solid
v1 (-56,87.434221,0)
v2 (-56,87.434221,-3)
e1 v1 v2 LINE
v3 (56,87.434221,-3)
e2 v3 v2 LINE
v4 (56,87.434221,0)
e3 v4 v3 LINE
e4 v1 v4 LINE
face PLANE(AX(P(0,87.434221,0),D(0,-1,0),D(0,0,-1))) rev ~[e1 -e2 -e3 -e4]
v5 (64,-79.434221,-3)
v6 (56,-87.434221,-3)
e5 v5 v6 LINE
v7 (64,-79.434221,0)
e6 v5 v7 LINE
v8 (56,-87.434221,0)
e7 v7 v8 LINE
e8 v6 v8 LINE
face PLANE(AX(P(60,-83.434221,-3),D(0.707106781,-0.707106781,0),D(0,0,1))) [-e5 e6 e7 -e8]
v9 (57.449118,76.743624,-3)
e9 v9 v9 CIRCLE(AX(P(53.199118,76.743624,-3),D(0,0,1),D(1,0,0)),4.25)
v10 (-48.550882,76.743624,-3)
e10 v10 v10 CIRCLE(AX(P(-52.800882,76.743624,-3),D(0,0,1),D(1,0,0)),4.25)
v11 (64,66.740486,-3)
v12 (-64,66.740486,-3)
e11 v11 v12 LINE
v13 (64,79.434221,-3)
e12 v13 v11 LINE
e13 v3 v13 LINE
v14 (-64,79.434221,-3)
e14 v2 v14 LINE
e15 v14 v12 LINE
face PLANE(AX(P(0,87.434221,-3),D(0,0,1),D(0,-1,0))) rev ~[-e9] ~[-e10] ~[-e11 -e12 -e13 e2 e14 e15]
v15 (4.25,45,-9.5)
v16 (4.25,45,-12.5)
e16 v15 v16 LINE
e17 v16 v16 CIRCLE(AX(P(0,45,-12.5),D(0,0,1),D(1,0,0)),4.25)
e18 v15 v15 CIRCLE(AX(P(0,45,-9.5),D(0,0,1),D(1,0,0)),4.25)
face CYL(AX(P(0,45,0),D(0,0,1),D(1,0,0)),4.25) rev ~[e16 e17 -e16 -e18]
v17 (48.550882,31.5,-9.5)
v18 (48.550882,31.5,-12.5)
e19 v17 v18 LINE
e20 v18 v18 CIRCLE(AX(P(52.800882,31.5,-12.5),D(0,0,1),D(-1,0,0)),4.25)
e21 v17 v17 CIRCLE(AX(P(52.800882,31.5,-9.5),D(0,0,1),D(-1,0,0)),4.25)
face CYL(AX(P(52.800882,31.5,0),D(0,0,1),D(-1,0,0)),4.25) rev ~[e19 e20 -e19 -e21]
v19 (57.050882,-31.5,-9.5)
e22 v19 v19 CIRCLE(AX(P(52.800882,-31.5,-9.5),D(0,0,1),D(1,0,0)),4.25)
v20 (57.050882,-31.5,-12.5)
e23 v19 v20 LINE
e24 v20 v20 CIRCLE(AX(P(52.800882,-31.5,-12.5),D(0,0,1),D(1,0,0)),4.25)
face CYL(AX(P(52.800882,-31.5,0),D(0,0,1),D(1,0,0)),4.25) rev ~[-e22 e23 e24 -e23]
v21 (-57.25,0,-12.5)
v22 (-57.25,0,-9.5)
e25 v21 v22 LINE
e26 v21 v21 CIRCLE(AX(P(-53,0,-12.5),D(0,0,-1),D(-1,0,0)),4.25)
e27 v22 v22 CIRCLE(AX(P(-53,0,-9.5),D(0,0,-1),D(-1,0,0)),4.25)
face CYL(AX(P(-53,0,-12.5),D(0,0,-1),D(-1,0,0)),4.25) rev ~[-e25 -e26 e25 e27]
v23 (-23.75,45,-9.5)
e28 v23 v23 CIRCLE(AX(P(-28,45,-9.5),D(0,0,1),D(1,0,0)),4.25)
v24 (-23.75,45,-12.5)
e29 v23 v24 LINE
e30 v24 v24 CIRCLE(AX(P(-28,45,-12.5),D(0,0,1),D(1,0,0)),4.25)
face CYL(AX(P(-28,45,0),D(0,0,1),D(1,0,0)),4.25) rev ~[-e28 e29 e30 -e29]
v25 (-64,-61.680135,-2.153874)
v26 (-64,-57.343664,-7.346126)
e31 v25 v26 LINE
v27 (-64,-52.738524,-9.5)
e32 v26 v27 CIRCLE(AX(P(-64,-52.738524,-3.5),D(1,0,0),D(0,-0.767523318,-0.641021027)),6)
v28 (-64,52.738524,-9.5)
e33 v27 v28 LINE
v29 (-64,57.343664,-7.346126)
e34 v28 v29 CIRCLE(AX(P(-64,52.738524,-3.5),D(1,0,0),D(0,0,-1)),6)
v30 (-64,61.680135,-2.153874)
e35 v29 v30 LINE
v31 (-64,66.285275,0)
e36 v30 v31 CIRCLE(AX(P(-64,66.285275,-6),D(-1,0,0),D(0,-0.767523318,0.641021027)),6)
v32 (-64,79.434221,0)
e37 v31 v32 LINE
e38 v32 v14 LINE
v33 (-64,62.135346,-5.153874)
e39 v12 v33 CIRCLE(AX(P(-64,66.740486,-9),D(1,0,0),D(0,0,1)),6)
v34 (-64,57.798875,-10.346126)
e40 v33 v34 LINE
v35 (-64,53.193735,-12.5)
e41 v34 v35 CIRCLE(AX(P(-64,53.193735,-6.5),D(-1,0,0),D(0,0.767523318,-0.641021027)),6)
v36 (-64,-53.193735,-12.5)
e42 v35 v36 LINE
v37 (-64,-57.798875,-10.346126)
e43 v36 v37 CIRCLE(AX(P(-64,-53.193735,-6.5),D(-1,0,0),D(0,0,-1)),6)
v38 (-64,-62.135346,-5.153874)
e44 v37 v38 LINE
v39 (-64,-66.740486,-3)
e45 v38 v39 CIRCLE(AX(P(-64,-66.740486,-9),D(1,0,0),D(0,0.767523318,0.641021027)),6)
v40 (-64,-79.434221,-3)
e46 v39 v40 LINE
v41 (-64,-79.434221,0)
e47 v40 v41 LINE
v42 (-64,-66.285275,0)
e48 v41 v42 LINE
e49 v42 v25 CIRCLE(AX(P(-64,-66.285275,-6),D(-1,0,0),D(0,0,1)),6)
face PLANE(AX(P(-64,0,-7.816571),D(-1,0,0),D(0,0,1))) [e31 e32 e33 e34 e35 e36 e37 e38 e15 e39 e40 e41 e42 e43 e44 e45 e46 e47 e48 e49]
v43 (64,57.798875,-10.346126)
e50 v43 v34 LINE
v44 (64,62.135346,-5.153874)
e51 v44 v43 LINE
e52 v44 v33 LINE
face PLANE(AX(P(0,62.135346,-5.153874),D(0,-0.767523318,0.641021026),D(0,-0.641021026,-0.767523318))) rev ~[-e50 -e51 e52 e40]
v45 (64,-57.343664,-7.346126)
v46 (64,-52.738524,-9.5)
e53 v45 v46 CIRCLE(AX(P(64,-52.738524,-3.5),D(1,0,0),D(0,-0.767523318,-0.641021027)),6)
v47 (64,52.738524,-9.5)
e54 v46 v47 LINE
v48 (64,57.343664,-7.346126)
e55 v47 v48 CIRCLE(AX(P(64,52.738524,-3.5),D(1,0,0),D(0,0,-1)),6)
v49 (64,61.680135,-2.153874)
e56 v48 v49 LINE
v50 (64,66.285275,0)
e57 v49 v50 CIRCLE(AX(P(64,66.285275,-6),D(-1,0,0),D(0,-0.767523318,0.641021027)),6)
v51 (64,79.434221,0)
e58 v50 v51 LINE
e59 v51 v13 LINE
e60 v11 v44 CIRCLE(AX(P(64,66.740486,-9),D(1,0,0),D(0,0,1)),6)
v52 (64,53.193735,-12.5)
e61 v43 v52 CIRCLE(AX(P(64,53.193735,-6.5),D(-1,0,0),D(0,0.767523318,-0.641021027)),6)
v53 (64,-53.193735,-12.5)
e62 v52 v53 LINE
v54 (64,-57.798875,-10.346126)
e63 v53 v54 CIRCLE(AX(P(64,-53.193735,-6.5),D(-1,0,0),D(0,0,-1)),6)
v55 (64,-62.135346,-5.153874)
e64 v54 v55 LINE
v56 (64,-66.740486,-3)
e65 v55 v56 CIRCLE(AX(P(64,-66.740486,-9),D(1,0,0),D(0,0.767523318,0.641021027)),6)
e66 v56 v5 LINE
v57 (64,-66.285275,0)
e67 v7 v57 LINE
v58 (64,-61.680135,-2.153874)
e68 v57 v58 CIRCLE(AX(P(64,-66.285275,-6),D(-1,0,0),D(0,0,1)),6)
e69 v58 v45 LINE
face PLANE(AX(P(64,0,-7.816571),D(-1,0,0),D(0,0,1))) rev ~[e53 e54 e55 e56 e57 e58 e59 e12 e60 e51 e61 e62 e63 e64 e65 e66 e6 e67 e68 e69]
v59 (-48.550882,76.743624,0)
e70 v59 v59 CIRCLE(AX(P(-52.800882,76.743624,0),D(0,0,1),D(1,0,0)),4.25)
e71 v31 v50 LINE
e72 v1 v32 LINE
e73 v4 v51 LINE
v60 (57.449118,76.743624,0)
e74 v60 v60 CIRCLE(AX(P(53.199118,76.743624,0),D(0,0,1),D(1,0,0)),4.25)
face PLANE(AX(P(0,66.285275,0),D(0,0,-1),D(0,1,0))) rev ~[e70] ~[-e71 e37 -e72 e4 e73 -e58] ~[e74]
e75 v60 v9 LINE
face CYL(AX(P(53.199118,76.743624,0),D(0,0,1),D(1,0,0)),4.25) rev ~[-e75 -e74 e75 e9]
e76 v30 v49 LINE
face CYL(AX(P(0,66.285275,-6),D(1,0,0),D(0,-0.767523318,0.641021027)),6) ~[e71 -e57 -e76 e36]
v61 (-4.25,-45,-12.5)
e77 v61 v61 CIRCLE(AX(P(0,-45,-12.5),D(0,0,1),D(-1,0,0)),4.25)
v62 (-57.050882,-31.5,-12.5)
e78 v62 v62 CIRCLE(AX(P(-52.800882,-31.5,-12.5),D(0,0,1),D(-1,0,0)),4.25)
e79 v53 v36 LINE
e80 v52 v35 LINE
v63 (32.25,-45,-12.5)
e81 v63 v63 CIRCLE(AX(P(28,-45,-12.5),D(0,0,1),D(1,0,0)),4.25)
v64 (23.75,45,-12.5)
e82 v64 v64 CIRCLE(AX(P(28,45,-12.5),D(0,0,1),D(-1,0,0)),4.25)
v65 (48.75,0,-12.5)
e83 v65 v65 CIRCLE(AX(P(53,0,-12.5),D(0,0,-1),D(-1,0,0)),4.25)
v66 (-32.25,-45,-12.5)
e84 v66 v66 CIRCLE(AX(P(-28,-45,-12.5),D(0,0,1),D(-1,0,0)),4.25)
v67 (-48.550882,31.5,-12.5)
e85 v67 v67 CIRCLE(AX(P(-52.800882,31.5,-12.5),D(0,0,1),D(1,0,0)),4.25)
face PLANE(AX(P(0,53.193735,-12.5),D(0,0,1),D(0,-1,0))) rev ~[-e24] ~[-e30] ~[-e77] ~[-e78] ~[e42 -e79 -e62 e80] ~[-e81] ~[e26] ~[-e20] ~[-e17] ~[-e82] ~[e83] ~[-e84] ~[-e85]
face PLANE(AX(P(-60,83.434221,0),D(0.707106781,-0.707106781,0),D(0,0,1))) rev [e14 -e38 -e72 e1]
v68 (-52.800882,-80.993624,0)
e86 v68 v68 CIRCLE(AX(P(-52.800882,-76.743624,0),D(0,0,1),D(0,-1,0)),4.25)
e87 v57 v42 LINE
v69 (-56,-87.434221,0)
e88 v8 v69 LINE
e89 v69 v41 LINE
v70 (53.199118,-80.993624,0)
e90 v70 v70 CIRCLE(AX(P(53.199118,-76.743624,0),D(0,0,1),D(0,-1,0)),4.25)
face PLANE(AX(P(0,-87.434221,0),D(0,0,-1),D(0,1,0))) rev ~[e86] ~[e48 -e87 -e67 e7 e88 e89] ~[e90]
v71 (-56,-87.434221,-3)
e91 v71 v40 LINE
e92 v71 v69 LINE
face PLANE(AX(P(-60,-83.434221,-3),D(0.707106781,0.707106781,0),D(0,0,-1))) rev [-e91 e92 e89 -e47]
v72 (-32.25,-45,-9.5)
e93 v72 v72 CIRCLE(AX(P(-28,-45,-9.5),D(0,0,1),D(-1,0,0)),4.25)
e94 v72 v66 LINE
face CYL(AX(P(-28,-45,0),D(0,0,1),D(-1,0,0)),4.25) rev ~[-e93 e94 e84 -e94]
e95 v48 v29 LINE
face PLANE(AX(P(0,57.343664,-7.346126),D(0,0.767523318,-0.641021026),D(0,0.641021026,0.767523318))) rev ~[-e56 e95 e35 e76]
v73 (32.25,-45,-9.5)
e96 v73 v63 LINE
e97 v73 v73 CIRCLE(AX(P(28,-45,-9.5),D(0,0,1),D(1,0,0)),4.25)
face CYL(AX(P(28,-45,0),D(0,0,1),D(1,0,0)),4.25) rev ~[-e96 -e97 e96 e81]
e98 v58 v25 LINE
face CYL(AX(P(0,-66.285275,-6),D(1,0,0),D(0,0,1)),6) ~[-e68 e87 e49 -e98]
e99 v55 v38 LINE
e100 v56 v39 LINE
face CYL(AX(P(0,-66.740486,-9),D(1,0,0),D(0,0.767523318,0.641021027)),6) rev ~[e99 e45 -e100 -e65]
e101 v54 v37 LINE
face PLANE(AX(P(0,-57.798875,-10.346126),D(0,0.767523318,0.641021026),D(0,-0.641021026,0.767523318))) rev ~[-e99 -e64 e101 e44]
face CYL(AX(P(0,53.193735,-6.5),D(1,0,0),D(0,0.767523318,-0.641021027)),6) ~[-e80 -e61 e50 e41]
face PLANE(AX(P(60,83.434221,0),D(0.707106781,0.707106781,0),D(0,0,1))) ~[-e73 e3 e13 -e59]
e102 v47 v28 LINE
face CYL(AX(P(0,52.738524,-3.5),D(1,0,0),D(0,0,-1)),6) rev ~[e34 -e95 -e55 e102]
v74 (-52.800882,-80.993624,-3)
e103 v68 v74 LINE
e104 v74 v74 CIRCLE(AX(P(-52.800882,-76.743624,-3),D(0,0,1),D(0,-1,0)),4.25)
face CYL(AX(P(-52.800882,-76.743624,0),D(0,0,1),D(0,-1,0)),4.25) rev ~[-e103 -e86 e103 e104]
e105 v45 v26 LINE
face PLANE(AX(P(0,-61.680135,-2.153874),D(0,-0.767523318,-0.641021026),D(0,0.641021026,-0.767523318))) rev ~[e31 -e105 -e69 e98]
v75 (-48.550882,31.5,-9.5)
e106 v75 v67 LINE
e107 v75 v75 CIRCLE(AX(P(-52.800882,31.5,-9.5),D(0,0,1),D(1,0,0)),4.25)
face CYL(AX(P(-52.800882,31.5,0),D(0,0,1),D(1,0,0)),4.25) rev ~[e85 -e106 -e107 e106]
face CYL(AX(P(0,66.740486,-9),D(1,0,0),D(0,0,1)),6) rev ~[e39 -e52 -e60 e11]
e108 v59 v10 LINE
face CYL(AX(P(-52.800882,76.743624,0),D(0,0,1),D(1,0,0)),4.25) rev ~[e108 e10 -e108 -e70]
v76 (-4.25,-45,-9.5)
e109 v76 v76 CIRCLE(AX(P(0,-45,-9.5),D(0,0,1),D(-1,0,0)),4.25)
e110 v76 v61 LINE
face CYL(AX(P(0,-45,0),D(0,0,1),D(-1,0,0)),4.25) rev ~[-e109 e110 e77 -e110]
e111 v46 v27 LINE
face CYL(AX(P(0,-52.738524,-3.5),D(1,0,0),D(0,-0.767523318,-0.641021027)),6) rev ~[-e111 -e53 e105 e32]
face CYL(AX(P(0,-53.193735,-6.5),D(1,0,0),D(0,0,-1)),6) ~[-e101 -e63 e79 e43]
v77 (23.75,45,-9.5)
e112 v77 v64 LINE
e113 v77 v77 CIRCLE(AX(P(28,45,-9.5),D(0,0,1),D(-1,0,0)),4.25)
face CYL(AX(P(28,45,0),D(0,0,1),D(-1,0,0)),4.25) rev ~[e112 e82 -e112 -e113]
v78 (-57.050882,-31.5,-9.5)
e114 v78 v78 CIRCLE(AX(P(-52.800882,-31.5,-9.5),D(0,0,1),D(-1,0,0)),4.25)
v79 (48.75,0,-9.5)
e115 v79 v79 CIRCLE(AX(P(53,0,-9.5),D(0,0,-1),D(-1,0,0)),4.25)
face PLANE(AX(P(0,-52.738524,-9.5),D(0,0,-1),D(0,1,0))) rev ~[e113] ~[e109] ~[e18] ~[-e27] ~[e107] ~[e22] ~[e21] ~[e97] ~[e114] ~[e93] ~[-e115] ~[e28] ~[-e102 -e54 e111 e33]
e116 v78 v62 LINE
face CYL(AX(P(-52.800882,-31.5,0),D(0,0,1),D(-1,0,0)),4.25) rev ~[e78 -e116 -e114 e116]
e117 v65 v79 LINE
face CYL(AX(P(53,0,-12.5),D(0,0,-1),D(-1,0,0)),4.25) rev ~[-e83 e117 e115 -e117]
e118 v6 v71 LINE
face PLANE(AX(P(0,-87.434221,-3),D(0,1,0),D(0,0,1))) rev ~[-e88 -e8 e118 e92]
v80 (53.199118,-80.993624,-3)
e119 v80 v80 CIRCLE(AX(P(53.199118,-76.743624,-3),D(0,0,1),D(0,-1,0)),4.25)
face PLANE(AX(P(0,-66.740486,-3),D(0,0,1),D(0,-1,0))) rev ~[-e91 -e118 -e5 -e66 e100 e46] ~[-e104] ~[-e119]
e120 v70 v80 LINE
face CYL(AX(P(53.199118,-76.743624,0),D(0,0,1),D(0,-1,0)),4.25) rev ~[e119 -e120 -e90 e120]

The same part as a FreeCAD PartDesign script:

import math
import FreeCAD as App
import Part
import Sketcher
from FreeCAD import Vector
Q = App.Units.Quantity


def edges_at(feature, points):
    """Names of the edges that pass closest to the given points."""
    edges = feature.Shape.Edges
    near = lambda p: min(range(len(edges)), key=lambda i: edges[i].distToShape(Part.Vertex(*p))[0])
    return sorted({f"Edge{near(p) + 1}" for p in points})

doc = App.newDocument("Part")
body = doc.addObject("PartDesign::Body", "Body")

# Sketch on YZ plane
sketch1 = body.newObject("Sketcher::SketchObject", "Sketch")
sketch1.AttachmentSupport = (doc.getObject("YZ_Plane"), [""])
sketch1.MapMode = "FlatFace"
sketch1.addGeometry([
    Part.LineSegment(Vector(87.434221, -3, 0), Vector(87.434221, 0, 0)),  # 0
    Part.LineSegment(Vector(87.434221, 0, 0), Vector(66.285275, 0, 0)),  # 1
    Part.ArcOfCircle(Part.Circle(Vector(66.285275, -6, 0), Vector(0, 0, 1), 6), math.radians(90), math.radians(140.132003)),  # 2
    Part.LineSegment(Vector(61.680135, -2.153874, 0), Vector(57.343664, -7.346126, 0)),  # 3
    Part.ArcOfCircle(Part.Circle(Vector(52.738524, -3.5, 0), Vector(0, 0, 1), 6), math.radians(-90), math.radians(-39.867997)),  # 4
    Part.LineSegment(Vector(52.738524, -9.5, 0), Vector(-52.738524, -9.5, 0)),  # 5
    Part.ArcOfCircle(Part.Circle(Vector(-52.738524, -3.5, 0), Vector(0, 0, 1), 6), math.radians(-140.132003), math.radians(-90)),  # 6
    Part.LineSegment(Vector(-57.343664, -7.346126, 0), Vector(-61.680135, -2.153874, 0)),  # 7
    Part.ArcOfCircle(Part.Circle(Vector(-66.285275, -6, 0), Vector(0, 0, 1), 6), math.radians(39.867997), math.radians(90)),  # 8
    Part.LineSegment(Vector(-66.285275, 0, 0), Vector(-87.434221, 0, 0)),  # 9
    Part.LineSegment(Vector(-87.434221, 0, 0), Vector(-87.434221, -3, 0)),  # 10
    Part.LineSegment(Vector(-87.434221, -3, 0), Vector(-66.740486, -3, 0)),  # 11
    Part.ArcOfCircle(Part.Circle(Vector(-66.740486, -9, 0), Vector(0, 0, 1), 6), math.radians(39.867997), math.radians(90)),  # 12
    Part.LineSegment(Vector(-62.135346, -5.153874, 0), Vector(-57.798875, -10.346126, 0)),  # 13
    Part.ArcOfCircle(Part.Circle(Vector(-53.193735, -6.5, 0), Vector(0, 0, 1), 6), math.radians(-140.132003), math.radians(-90)),  # 14
    Part.LineSegment(Vector(-53.193735, -12.5, 0), Vector(53.193735, -12.5, 0)),  # 15
    Part.ArcOfCircle(Part.Circle(Vector(53.193735, -6.5, 0), Vector(0, 0, 1), 6), math.radians(-90), math.radians(-39.867997)),  # 16
    Part.LineSegment(Vector(57.798875, -10.346126, 0), Vector(62.135346, -5.153874, 0)),  # 17
    Part.ArcOfCircle(Part.Circle(Vector(66.740486, -9, 0), Vector(0, 0, 1), 6), math.radians(90), math.radians(140.132003)),  # 18
    Part.LineSegment(Vector(66.740486, -3, 0), Vector(87.434221, -3, 0)),  # 19
], False)
sketch1.addConstraint([
    Sketcher.Constraint("Coincident", 0, 2, 1, 1),
    Sketcher.Constraint("Tangent", 1, 2, 2, 1),
    Sketcher.Constraint("Tangent", 2, 2, 3, 1),
    Sketcher.Constraint("Tangent", 3, 2, 4, 2),
    Sketcher.Constraint("Tangent", 4, 1, 5, 1),
    Sketcher.Constraint("Tangent", 5, 2, 6, 2),
    Sketcher.Constraint("Tangent", 6, 1, 7, 1),
    Sketcher.Constraint("Tangent", 7, 2, 8, 1),
    Sketcher.Constraint("Tangent", 8, 2, 9, 1),
    Sketcher.Constraint("Coincident", 9, 2, 10, 1),
    Sketcher.Constraint("Coincident", 10, 2, 11, 1),
    Sketcher.Constraint("Tangent", 11, 2, 12, 2),
    Sketcher.Constraint("Tangent", 12, 1, 13, 1),
    Sketcher.Constraint("Tangent", 13, 2, 14, 1),
    Sketcher.Constraint("Tangent", 14, 2, 15, 1),
    Sketcher.Constraint("Tangent", 15, 2, 16, 1),
    Sketcher.Constraint("Tangent", 16, 2, 17, 1),
    Sketcher.Constraint("Tangent", 17, 2, 18, 2),
    Sketcher.Constraint("Tangent", 18, 1, 19, 1),
    Sketcher.Constraint("Coincident", 19, 2, 0, 1),
    Sketcher.Constraint("Vertical", 0),
    Sketcher.Constraint("Horizontal", 1),
    Sketcher.Constraint("Horizontal", 5),
    Sketcher.Constraint("Horizontal", 9),
    Sketcher.Constraint("Vertical", 10),
    Sketcher.Constraint("Horizontal", 11),
    Sketcher.Constraint("Horizontal", 15),
    Sketcher.Constraint("Horizontal", 19),
    Sketcher.Constraint("Equal", 2, 4),
    Sketcher.Constraint("Equal", 4, 6),
    Sketcher.Constraint("Equal", 6, 8),
    Sketcher.Constraint("Equal", 8, 12),
    Sketcher.Constraint("Equal", 12, 14),
    Sketcher.Constraint("Equal", 14, 16),
    Sketcher.Constraint("Equal", 16, 18),
    Sketcher.Constraint("Symmetric", 1, 2, 8, 2, -1, 1),
    Sketcher.Constraint("Symmetric", 12, 3, 18, 3, -2),
    Sketcher.Constraint("Symmetric", 3, 2, 6, 1, -2),
    Sketcher.Constraint("Parallel", 7, 13),
    Sketcher.Constraint("Parallel", 3, 17),
    Sketcher.Constraint("Equal", 1, 9),
    Sketcher.Constraint("Equal", 7, 13),
    Sketcher.Constraint("Radius", 2, Q("6 mm")),
    Sketcher.Constraint("DistanceY", 0, 1, 0, 2, Q("3 mm")),
    Sketcher.Constraint("DistanceY", 4, 3, -1, 1, Q("3.5 mm")),
    Sketcher.Constraint("DistanceX", 15, 1, 15, 2, Q("106.38747 mm")),
    Sketcher.Constraint("DistanceX", 6, 3, 2, 3, Q("119.023799 mm")),
    Sketcher.Constraint("DistanceX", 16, 3, 2, 2, Q("8.4864 mm")),
    Sketcher.Constraint("DistanceX", 1, 2, 1, 1, Q("21.148946 mm")),
])
pad1 = body.newObject("PartDesign::Pad", "Pad")
pad1.Profile = sketch1
pad1.Length = 128
pad1.Midplane = True
doc.recompute()

chamfer = body.newObject("PartDesign::Chamfer", "Chamfer")
chamfer.Base = (pad1, edges_at(pad1, [
    (-64, 87.434, -1.5),
    (-64, -87.434, -1.5),
    (64, -87.434, -1.5),
    (64, 87.434, -1.5),
]))
chamfer.Size = 8

# Sketch on XY plane
sketch2 = body.newObject("Sketcher::SketchObject", "Sketch001")
sketch2.AttachmentSupport = (doc.getObject("XY_Plane"), [""])
sketch2.MapMode = "FlatFace"
sketch2.addGeometry([
    Part.Circle(Vector(-52.800882, 76.743624, 0), Vector(0, 0, 1), 4.25),  # 0
    Part.Circle(Vector(53.199118, 76.743624, 0), Vector(0, 0, 1), 4.25),  # 1
    Part.Circle(Vector(-52.800882, 31.5, 0), Vector(0, 0, 1), 4.25),  # 2
    Part.Circle(Vector(-28, 45, 0), Vector(0, 0, 1), 4.25),  # 3
    Part.Circle(Vector(0, 45, 0), Vector(0, 0, 1), 4.25),  # 4
    Part.Circle(Vector(52.800882, 31.5, 0), Vector(0, 0, 1), 4.25),  # 5
    Part.Circle(Vector(28, 45, 0), Vector(0, 0, 1), 4.25),  # 6
    Part.Circle(Vector(53.199118, -76.743624, 0), Vector(0, 0, 1), 4.25),  # 7
    Part.Circle(Vector(52.800882, -31.5, 0), Vector(0, 0, 1), 4.25),  # 8
    Part.Circle(Vector(28, -45, 0), Vector(0, 0, 1), 4.25),  # 9
    Part.Circle(Vector(0, -45, 0), Vector(0, 0, 1), 4.25),  # 10
    Part.Circle(Vector(-28, -45, 0), Vector(0, 0, 1), 4.25),  # 11
    Part.Circle(Vector(-52.800882, -31.5, 0), Vector(0, 0, 1), 4.25),  # 12
    Part.Circle(Vector(-52.800882, -76.743624, 0), Vector(0, 0, 1), 4.25),  # 13
], False)
sketch2.addConstraint([
    Sketcher.Constraint("Equal", 0, 1),
    Sketcher.Constraint("Equal", 1, 2),
    Sketcher.Constraint("Equal", 2, 3),
    Sketcher.Constraint("Equal", 3, 4),
    Sketcher.Constraint("Equal", 4, 5),
    Sketcher.Constraint("Equal", 5, 6),
    Sketcher.Constraint("Equal", 6, 7),
    Sketcher.Constraint("Equal", 7, 8),
    Sketcher.Constraint("Equal", 8, 9),
    Sketcher.Constraint("Equal", 9, 10),
    Sketcher.Constraint("Equal", 10, 11),
    Sketcher.Constraint("Equal", 11, 12),
    Sketcher.Constraint("Equal", 12, 13),
    Sketcher.Constraint("Symmetric", 2, 3, 8, 3, -1, 1),
    Sketcher.Constraint("Symmetric", 3, 3, 9, 3, -1, 1),
    Sketcher.Constraint("Symmetric", 4, 3, 10, 3, -1, 1),
    Sketcher.Constraint("Symmetric", 6, 3, 11, 3, -1, 1),
    Sketcher.Constraint("Symmetric", 5, 3, 12, 3, -1, 1),
    Sketcher.Constraint("Symmetric", 2, 3, 5, 3, -2),
    Sketcher.Constraint("Symmetric", 3, 3, 6, 3, -2),
    Sketcher.Constraint("Symmetric", 1, 3, 7, 3, -1),
    Sketcher.Constraint("Symmetric", 0, 3, 13, 3, -1),
    Sketcher.Constraint("PointOnObject", 4, 3, -2),
    Sketcher.Constraint("Horizontal", 0, 3, 1, 3),
    Sketcher.Constraint("Horizontal", 3, 3, 4, 3),
    Sketcher.Constraint("Vertical", 0, 3, 2, 3),
    Sketcher.Constraint("Diameter", 0, Q("8.5 mm")),
    Sketcher.Constraint("DistanceX", 3, 3, -1, 1, Q("28 mm")),
    Sketcher.Constraint("DistanceY", -1, 1, 3, 3, Q("45 mm")),
    Sketcher.Constraint("DistanceX", 0, 3, 1, 3, Q("106 mm")),
    Sketcher.Constraint("DistanceY", 8, 3, 5, 3, Q("63 mm")),
    Sketcher.Constraint("DistanceX", 0, 3, -1, 1, Q("52.800882 mm")),
    Sketcher.Constraint("DistanceY", -1, 1, 0, 3, Q("76.743624 mm")),
])
pocket1 = body.newObject("PartDesign::Pocket", "Pocket")
pocket1.Profile = sketch2
pocket1.Type = "ThroughAll"

# Sketch on XY plane
sketch3 = body.newObject("Sketcher::SketchObject", "Sketch002")
sketch3.AttachmentSupport = (doc.getObject("XY_Plane"), [""])
sketch3.MapMode = "FlatFace"
sketch3.AttachmentOffset = App.Placement(Vector(0, 0, -12.5), App.Rotation())
sketch3.addGeometry([
    Part.Circle(Vector(53, 0, 0), Vector(0, 0, 1), 4.25),
    Part.Circle(Vector(-53, 0, 0), Vector(0, 0, 1), 4.25),
], False)
sketch3.addConstraint([
    Sketcher.Constraint("Equal", 0, 1),
    Sketcher.Constraint("Symmetric", 0, 3, 1, 3, -1, 1),
    Sketcher.Constraint("PointOnObject", 0, 3, -1),
    Sketcher.Constraint("Diameter", 0, Q("8.5 mm")),
    Sketcher.Constraint("DistanceX", -1, 1, 0, 3, Q("53 mm")),
])
pocket2 = body.newObject("PartDesign::Pocket", "Pocket001")
pocket2.Profile = sketch3
pocket2.Length = 10
pocket2.Reversed = True

doc.recompute()
